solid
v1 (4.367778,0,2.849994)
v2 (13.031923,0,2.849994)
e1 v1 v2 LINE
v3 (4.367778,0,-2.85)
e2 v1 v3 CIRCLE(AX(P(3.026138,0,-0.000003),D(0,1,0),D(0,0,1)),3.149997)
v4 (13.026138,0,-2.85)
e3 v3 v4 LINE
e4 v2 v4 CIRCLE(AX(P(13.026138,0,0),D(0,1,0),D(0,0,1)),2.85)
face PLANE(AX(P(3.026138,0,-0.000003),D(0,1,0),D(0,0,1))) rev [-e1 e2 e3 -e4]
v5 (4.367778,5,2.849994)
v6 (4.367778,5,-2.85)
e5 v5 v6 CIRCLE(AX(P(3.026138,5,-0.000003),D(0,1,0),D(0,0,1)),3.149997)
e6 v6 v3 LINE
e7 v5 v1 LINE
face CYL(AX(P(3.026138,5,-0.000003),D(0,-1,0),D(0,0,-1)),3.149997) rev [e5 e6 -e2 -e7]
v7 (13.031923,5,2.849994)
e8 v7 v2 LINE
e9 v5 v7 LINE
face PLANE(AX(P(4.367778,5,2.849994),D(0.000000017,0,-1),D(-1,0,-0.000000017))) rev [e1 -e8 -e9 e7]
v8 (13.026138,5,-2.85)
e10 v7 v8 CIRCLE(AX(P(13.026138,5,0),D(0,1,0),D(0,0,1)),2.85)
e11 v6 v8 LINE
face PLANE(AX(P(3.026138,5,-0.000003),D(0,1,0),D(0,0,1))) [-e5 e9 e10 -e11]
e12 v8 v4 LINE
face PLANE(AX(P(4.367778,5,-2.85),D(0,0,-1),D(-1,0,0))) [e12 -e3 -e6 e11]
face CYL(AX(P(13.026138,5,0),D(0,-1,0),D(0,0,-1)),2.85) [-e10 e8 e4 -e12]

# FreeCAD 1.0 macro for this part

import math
import FreeCAD as App
import Part
import Sketcher

doc = App.newDocument("Part")
params = doc.addObject("Spreadsheet::Sheet", "Params")
for row, (alias, value) in enumerate([
    ("sketch1_radius", "2.85 mm"),
    ("pad1_length", "5 mm"),
], start=1):
    params.set(f"A{row}", alias)
    params.set(f"B{row}", "=" + value)
    params.setAlias(f"B{row}", alias)

body = doc.addObject("PartDesign::Body", "Body")

# Sketch on XZ plane
sketch1 = body.newObject("Sketcher::SketchObject", "Sketch")
sketch1.AttachmentSupport = (doc.getObject("XZ_Plane"), [""])
sketch1.MapMode = "FlatFace"
sketch1.addGeometry(Part.LineSegment(App.Vector(13, -2.9, 0), App.Vector(4.4, -2.9, 0)), False)
sketch1.addGeometry(Part.ArcOfCircle(Part.Circle(App.Vector(3, 0, 0), App.Vector(0, 0, 1), 3.1), math.radians(-65), math.radians(65)), False)
sketch1.addGeometry(Part.LineSegment(App.Vector(4.4, 2.8, 0), App.Vector(13, 2.8, 0)), False)
sketch1.addGeometry(Part.ArcOfCircle(Part.Circle(App.Vector(13, 0, 0), App.Vector(0, 0, 1), 2.9), math.radians(-90), math.radians(90)), False)
sketch1.addConstraint(Sketcher.Constraint("Coincident", 0, 2, 1, 1))
sketch1.addConstraint(Sketcher.Constraint("Coincident", 1, 2, 2, 1))
sketch1.addConstraint(Sketcher.Constraint("Coincident", 2, 2, 3, 2))
sketch1.addConstraint(Sketcher.Constraint("Tangent", 3, 1, 0, 1))
sketch1.addConstraint(Sketcher.Constraint("Horizontal", 0))
sketch1.addConstraint(Sketcher.Constraint("Horizontal", 2))
sketch1.addConstraint(Sketcher.Constraint("Symmetric", 0, 2, 1, 2, -1))
sketch1.addConstraint(Sketcher.Constraint("Radius", 3, 2.85))
sketch1.addConstraint(Sketcher.Constraint("DistanceX", 1, 3, 3, 3, 10.0))
sketch1.addConstraint(Sketcher.Constraint("Radius", 1, 3.149997))
sketch1.addConstraint(Sketcher.Constraint("DistanceX", 2, 1, 2, 2, 8.664144))
sketch1.addConstraint(Sketcher.Constraint("DistanceX", -1, 1, 1, 3, 3.026138))
sketch1.setExpression("Constraints[7]", "Params.sketch1_radius")
pad1 = body.newObject("PartDesign::Pad", "Pad")
pad1.Profile = sketch1
pad1.setExpression("Length", "Params.pad1_length")
pad1.Reversed = True

doc.recompute()
